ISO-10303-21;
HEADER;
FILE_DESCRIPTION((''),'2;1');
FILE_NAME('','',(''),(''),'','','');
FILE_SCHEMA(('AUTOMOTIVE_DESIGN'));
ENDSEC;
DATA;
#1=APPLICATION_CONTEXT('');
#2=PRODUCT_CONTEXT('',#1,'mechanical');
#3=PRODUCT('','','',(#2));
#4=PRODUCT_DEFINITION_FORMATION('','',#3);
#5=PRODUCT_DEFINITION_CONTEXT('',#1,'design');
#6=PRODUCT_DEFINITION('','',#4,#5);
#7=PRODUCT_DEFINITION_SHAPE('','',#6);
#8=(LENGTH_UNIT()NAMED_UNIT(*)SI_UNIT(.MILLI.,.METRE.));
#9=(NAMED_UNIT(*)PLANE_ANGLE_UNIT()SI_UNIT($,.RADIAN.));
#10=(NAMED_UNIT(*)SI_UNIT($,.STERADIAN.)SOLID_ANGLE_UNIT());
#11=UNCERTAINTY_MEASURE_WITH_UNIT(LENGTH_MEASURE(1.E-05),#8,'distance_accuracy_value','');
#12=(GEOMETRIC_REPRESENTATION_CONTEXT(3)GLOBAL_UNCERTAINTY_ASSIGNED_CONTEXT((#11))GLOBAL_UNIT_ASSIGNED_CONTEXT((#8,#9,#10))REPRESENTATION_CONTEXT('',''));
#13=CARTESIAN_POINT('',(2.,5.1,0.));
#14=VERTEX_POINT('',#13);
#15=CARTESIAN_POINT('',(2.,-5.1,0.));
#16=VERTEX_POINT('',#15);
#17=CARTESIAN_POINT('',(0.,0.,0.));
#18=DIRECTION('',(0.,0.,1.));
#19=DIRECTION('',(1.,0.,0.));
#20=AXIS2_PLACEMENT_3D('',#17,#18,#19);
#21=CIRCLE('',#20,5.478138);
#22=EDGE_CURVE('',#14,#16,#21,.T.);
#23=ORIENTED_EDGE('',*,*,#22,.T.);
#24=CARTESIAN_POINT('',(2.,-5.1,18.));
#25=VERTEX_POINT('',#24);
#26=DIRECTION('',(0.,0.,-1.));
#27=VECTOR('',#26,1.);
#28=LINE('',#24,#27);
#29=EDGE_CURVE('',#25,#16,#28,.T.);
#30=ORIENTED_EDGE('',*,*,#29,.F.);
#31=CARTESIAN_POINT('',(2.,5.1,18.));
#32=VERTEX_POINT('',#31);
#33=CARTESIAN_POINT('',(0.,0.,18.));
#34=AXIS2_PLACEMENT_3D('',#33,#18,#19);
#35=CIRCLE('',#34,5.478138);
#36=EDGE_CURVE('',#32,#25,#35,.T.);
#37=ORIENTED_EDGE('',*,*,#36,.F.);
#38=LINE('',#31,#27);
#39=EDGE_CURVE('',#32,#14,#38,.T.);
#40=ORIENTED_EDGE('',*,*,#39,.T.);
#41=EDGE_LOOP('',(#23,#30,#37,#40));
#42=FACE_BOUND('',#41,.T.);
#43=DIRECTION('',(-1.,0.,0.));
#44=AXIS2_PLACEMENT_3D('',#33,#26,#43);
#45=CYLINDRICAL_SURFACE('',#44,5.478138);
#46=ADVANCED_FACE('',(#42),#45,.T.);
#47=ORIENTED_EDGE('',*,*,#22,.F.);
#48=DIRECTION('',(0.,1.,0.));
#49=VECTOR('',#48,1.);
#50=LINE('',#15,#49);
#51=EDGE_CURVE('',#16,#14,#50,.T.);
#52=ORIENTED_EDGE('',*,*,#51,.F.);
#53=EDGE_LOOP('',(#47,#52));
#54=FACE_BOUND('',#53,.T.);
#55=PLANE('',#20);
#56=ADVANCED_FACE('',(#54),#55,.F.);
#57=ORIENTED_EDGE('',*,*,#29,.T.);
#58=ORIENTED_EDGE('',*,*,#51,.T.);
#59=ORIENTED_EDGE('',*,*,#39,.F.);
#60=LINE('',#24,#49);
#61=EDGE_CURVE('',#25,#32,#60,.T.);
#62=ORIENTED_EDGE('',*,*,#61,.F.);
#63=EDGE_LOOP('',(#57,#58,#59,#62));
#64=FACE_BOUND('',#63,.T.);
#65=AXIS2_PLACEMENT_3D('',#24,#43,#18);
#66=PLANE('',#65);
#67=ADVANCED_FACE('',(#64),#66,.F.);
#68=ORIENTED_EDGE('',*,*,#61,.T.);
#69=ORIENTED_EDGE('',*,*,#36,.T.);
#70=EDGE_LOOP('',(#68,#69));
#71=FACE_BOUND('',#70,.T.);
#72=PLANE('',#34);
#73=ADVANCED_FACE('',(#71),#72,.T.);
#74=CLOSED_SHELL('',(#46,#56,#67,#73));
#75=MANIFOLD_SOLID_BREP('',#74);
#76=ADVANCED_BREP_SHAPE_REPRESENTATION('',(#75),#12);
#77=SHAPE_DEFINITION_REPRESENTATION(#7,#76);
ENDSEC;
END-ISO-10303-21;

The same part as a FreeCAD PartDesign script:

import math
import FreeCAD as App
import Part
import Sketcher

V = App.Vector
Q = App.Units.Quantity

doc = App.newDocument("Part")
body = doc.addObject("PartDesign::Body", "Body")

# Sketch on XY plane
sketch1 = body.newObject("Sketcher::SketchObject", "Sketch")
sketch1.AttachmentSupport = (doc.getObject("XY_Plane"), [""])
sketch1.MapMode = "FlatFace"
sketch1.addGeometry([
    Part.LineSegment(V(2, -5, 0), V(2, 5, 0)),
    Part.ArcOfCircle(Part.Circle(V(0, 0, 0), V(0, 0, 1), 5), math.radians(69), math.radians(291)),
], False)
sketch1.addConstraint([
    Sketcher.Constraint("Coincident", 0, 1, 1, 2),
    Sketcher.Constraint("Coincident", 1, 1, 0, 2),
    Sketcher.Constraint("Vertical", 0),
    Sketcher.Constraint("Coincident", 1, 3, -1, 1),
    Sketcher.Constraint("DistanceY", 0, 1, 0, 2, Q("10.2 mm")),
    Sketcher.Constraint("DistanceX", -1, 1, 0, 1, Q("2 mm")),
])
pad1 = body.newObject("PartDesign::Pad", "Pad")
pad1.Profile = sketch1
pad1.Length = 18

doc.recompute()
